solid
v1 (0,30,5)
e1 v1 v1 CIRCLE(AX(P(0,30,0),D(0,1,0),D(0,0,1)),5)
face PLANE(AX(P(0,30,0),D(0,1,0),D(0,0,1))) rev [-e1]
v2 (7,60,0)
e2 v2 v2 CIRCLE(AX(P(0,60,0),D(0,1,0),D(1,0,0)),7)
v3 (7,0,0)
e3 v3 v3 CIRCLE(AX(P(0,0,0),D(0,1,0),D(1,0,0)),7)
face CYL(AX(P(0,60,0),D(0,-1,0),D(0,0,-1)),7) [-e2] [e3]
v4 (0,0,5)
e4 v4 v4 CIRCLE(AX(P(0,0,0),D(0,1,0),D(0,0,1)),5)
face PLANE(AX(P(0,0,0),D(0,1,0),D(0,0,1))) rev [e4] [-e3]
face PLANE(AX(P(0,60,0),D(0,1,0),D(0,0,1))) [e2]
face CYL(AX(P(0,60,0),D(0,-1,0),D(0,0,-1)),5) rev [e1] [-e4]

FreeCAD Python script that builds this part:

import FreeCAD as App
import Part
import Sketcher

doc = App.newDocument("Part")
params = doc.addObject("Spreadsheet::Sheet", "Params")
for row, (alias, value) in enumerate([
    ("sketch1_diameter", "14 mm"),
    ("sketch1_diameter2", "10 mm"),
    ("pad1_length", "60 mm"),
    ("sketch2_diameter", "10 mm"),
    ("pad2_length", "30 mm"),
], start=1):
    params.set(f"A{row}", alias)
    params.set(f"B{row}", "=" + value)
    params.setAlias(f"B{row}", alias)

body = doc.addObject("PartDesign::Body", "Body")

# Sketch on XZ plane
sketch1 = body.newObject("Sketcher::SketchObject", "Sketch")
sketch1.AttachmentSupport = (doc.getObject("XZ_Plane"), [""])
sketch1.MapMode = "FlatFace"
sketch1.addGeometry([
    Part.Circle(App.Vector(0, 0, 0), App.Vector(0, 0, 1), 7),
    Part.Circle(App.Vector(0, 0, 0), App.Vector(0, 0, 1), 5),
], False)
sketch1.addConstraint([
    Sketcher.Constraint("Coincident", 0, 3, -1, 1),
    Sketcher.Constraint("Coincident", 1, 3, -1, 1),
    Sketcher.Constraint("Diameter", 0, 14.0),
    Sketcher.Constraint("Diameter", 1, 10.0),
])
sketch1.setExpression("Constraints[2]", "Params.sketch1_diameter")
sketch1.setExpression("Constraints[3]", "Params.sketch1_diameter2")
pad1 = body.newObject("PartDesign::Pad", "Pad")
pad1.Profile = sketch1
pad1.setExpression("Length", "Params.pad1_length")
pad1.Reversed = True

# Sketch on XZ plane
sketch2 = body.newObject("Sketcher::SketchObject", "Sketch001")
sketch2.AttachmentSupport = (doc.getObject("XZ_Plane"), [""])
sketch2.MapMode = "FlatFace"
sketch2.AttachmentOffset = App.Placement(App.Vector(0, 0, -30), App.Rotation())
sketch2.addGeometry(Part.Circle(App.Vector(0, 0, 0), App.Vector(0, 0, 1), 5), False)
sketch2.addConstraint([
    Sketcher.Constraint("Coincident", 0, 3, -1, 1),
    Sketcher.Constraint("Diameter", 0, 10.0),
])
sketch2.setExpression("Constraints[1]", "Params.sketch2_diameter")
pad2 = body.newObject("PartDesign::Pad", "Pad001")
pad2.Profile = sketch2
pad2.setExpression("Length", "Params.pad2_length")
pad2.Reversed = True

doc.recompute()
